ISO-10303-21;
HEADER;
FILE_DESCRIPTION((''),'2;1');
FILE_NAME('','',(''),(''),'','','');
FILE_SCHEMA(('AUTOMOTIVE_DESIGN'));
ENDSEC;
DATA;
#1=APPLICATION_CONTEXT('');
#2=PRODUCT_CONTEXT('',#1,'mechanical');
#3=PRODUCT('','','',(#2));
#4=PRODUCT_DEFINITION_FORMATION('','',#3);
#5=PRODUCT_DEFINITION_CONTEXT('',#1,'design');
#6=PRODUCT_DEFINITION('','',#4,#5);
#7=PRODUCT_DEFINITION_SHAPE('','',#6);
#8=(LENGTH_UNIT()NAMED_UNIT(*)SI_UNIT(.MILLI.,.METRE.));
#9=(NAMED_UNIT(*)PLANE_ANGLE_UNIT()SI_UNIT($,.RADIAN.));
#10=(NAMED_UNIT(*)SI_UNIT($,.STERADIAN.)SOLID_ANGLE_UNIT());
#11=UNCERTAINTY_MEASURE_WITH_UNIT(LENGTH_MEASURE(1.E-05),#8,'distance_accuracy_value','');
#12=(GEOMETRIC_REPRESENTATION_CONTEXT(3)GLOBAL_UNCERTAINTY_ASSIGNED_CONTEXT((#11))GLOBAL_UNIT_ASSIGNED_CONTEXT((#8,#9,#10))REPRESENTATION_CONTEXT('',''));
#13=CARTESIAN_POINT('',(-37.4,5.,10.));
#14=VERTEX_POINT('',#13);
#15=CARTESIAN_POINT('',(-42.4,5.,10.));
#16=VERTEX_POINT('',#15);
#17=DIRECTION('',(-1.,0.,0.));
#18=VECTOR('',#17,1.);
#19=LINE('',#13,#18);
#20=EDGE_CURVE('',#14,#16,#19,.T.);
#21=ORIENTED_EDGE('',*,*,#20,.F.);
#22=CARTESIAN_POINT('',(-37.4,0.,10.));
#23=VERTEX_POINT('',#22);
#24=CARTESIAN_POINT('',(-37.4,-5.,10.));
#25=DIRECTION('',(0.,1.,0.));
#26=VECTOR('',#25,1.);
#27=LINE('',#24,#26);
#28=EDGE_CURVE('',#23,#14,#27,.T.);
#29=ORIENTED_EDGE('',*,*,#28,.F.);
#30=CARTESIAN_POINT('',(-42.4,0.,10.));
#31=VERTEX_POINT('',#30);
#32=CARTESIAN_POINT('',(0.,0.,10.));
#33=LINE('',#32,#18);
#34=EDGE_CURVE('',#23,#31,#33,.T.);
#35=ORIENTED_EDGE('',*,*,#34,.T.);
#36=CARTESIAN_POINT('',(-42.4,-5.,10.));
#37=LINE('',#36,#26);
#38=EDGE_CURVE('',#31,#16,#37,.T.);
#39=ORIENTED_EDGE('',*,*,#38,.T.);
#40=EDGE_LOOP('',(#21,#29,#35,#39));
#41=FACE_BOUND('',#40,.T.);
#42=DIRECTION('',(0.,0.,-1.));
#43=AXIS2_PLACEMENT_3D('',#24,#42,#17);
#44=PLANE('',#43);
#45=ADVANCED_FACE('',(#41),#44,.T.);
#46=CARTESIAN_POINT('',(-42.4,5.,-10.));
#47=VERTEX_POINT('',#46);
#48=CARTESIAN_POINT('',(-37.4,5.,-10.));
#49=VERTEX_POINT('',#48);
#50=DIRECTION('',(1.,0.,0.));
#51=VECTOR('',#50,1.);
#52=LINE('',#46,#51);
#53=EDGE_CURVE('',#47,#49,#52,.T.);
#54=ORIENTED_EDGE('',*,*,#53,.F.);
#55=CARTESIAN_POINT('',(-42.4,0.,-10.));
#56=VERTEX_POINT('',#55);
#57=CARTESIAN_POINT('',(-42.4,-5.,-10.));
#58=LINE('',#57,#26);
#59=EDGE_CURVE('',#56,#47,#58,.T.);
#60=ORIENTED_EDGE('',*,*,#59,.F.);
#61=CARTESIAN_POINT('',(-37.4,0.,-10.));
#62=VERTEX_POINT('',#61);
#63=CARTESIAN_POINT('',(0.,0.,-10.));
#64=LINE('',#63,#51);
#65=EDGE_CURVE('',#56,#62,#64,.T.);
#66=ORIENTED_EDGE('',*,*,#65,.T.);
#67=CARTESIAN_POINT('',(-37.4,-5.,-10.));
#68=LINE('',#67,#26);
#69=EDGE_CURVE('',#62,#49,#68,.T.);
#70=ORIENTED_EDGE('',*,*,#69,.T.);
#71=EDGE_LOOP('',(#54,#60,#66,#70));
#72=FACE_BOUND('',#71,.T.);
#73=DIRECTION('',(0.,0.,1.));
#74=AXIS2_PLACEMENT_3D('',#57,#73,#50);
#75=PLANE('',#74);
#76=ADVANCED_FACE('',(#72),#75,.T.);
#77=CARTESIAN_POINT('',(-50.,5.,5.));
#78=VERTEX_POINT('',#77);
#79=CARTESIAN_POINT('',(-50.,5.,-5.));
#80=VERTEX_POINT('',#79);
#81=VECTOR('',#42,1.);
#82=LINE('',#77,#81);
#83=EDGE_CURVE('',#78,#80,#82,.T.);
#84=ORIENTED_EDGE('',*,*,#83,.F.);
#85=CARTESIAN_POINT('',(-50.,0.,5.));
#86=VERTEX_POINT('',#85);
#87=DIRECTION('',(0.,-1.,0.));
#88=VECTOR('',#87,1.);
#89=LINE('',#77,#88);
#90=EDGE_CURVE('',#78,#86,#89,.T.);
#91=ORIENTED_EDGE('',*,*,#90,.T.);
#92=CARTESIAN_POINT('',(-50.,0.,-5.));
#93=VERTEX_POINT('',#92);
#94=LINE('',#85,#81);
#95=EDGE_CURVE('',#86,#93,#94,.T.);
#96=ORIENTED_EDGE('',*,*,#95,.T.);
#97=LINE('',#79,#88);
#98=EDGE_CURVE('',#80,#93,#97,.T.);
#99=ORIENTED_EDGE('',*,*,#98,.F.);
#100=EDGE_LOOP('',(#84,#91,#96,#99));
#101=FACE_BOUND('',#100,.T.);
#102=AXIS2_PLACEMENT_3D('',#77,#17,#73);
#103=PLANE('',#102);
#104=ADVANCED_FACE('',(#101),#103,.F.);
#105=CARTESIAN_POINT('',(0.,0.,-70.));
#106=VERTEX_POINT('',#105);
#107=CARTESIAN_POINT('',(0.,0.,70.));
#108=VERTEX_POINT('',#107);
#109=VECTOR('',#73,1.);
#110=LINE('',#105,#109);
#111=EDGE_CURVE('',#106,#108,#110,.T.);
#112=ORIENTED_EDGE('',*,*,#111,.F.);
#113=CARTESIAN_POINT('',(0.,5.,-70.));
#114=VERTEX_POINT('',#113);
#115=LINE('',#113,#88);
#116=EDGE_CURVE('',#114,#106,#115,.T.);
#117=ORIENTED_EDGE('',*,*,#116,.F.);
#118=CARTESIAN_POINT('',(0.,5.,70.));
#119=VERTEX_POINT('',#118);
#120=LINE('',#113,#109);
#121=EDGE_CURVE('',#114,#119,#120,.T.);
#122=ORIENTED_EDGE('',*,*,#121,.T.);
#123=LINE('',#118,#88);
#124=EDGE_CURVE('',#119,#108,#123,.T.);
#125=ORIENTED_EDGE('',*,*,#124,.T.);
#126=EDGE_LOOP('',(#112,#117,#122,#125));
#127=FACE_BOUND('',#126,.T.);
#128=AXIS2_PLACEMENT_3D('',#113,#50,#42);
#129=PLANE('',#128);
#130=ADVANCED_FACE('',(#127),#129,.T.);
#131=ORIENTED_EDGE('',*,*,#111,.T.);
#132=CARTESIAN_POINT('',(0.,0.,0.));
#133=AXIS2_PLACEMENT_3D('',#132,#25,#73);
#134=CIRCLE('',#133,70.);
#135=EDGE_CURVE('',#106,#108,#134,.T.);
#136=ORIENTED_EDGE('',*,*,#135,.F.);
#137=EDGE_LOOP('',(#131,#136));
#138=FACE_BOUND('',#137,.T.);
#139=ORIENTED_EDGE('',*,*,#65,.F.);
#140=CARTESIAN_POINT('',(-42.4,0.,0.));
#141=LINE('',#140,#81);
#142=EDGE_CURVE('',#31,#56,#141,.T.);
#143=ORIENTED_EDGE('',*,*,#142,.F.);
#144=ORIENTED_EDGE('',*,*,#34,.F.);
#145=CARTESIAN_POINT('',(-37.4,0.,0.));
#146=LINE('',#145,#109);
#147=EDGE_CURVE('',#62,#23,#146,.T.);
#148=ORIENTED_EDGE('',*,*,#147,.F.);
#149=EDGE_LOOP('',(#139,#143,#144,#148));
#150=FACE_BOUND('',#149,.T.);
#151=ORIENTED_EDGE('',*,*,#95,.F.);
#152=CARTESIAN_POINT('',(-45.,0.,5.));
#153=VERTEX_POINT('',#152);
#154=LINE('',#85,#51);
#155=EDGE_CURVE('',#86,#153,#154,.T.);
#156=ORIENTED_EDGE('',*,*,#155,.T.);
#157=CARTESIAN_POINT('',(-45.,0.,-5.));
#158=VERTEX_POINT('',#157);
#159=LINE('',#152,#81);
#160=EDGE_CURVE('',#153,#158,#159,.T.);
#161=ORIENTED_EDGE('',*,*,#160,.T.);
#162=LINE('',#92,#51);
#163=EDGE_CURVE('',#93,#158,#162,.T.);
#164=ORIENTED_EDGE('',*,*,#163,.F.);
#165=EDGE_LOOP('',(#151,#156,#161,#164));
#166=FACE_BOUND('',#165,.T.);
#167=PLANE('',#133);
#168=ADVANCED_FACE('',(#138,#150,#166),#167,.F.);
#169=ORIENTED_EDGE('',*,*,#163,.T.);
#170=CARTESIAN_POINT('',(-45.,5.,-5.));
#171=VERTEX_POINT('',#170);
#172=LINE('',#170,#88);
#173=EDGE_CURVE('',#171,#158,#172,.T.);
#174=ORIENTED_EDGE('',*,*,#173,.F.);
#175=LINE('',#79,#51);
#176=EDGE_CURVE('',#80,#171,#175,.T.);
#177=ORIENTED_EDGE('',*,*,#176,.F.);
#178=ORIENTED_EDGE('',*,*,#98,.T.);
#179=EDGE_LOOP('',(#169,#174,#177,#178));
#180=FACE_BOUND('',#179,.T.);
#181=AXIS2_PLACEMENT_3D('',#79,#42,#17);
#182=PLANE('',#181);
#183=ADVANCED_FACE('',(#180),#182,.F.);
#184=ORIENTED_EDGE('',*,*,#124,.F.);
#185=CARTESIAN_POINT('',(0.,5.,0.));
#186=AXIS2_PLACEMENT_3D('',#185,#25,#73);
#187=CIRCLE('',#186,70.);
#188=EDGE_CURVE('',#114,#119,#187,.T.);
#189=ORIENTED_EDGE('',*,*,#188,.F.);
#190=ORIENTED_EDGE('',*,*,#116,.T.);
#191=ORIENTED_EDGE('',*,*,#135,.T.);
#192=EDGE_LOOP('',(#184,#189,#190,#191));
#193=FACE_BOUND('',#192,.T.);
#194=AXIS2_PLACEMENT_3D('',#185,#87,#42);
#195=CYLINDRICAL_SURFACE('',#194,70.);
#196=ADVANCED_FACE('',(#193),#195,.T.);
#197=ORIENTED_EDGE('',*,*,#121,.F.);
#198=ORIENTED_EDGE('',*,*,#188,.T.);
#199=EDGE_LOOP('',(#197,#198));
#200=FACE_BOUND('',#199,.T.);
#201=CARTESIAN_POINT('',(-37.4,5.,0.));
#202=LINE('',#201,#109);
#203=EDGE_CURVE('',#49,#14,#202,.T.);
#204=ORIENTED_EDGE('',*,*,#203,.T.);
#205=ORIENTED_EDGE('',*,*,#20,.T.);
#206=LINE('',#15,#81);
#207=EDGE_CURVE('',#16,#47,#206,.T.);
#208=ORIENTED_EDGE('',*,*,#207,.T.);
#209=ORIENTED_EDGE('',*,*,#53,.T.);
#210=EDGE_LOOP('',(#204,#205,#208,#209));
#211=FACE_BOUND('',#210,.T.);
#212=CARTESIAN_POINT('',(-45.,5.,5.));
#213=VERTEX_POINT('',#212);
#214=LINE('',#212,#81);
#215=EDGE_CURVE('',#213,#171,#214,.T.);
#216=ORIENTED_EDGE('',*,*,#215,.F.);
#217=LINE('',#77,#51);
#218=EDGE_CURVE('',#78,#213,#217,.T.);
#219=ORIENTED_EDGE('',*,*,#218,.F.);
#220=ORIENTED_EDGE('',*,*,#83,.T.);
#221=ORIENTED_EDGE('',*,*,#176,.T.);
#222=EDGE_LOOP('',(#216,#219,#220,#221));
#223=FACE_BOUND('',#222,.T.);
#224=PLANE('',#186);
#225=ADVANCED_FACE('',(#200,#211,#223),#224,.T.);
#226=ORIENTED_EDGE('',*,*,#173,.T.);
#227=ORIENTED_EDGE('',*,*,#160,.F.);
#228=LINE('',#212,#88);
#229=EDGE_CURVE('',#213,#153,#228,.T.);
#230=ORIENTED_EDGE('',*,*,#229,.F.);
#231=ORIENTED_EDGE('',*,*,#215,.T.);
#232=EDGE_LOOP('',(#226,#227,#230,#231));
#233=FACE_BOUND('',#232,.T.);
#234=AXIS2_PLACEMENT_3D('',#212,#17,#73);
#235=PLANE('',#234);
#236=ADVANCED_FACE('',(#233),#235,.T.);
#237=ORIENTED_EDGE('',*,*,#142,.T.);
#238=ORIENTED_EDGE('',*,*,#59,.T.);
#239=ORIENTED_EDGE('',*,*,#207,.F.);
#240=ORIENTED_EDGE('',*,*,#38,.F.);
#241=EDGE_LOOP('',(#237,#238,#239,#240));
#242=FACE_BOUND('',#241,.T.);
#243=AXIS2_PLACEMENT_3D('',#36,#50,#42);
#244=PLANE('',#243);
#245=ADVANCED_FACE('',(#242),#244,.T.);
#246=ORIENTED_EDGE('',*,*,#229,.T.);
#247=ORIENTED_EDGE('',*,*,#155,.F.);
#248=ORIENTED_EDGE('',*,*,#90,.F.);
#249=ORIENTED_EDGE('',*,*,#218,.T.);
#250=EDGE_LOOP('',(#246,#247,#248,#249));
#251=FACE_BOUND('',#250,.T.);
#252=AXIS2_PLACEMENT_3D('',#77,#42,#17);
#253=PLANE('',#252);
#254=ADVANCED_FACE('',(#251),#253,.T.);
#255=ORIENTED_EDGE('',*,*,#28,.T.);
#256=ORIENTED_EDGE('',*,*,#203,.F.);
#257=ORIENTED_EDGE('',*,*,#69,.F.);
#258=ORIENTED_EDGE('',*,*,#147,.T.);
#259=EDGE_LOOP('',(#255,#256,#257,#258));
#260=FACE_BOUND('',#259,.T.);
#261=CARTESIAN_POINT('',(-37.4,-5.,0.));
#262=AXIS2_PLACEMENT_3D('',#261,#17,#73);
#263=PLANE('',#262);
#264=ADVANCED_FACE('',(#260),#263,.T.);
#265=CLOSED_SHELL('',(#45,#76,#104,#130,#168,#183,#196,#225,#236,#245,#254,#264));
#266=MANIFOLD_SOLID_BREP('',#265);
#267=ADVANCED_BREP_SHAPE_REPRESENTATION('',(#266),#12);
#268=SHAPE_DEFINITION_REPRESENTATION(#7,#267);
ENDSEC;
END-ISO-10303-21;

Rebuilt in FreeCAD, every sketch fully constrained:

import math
import FreeCAD as App
import Part
import Sketcher

V = App.Vector
Q = App.Units.Quantity


def add_polygon(sketch, points):
    """Adds a closed chain of lines whose ends are joined by coincident constraints."""
    first, n = sketch.GeometryCount, len(points)
    for a, b in zip(points, points[1:] + points[:1]):
        sketch.addGeometry(Part.LineSegment(App.Vector(*a, 0), App.Vector(*b, 0)), False)
    for i in range(n):
        sketch.addConstraint(Sketcher.Constraint("Coincident", first + i, 2, first + (i + 1) % n, 1))

doc = App.newDocument("Part")
body = doc.addObject("PartDesign::Body", "Body")

sketch1 = body.newObject("Sketcher::SketchObject", "Sketch")
sketch1.AttachmentSupport = (doc.getObject("XZ_Plane"), [""])
sketch1.MapMode = "FlatFace"
sketch1.addGeometry(Part.LineSegment(V(0, 70, 0), V(0, -70, 0)), False)
sketch1.addGeometry(Part.ArcOfCircle(Part.Circle(V(0, 0, 0), V(0, 0, 1), 70), math.radians(90), math.radians(270)), False)
add_polygon(sketch1, [(-50, 5), (-50, -5), (-45, -5), (-45, 5)])
sketch1.addConstraint([
    Sketcher.Constraint("Coincident", 0, 1, 1, 1),
    Sketcher.Constraint("Coincident", 1, 2, 0, 2),
    Sketcher.Constraint("Vertical", 0),
    Sketcher.Constraint("Vertical", 2),
    Sketcher.Constraint("Horizontal", 3),
    Sketcher.Constraint("Vertical", 4),
    Sketcher.Constraint("Horizontal", 5),
    Sketcher.Constraint("Coincident", 1, 3, -1, 1),
    Sketcher.Constraint("PointOnObject", 0, 1, -2),
    Sketcher.Constraint("Radius", 1, Q("70 mm")),
    Sketcher.Constraint("DistanceX", 3, 1, 3, 2, Q("5 mm")),
    Sketcher.Constraint("DistanceY", 2, 2, 2, 1, Q("10 mm")),
    Sketcher.Constraint("DistanceX", 2, 2, -1, 1, Q("50 mm")),
    Sketcher.Constraint("DistanceY", 2, 2, -1, 1, Q("5 mm")),
])
pad1 = body.newObject("PartDesign::Pad", "Pad")
pad1.Profile = sketch1
pad1.Length = 5
pad1.Reversed = True

sketch2 = body.newObject("Sketcher::SketchObject", "Sketch001")
sketch2.AttachmentSupport = (doc.getObject("XZ_Plane"), [""])
sketch2.MapMode = "FlatFace"
sketch2.AttachmentOffset = App.Placement(V(0, 0, -5), App.Rotation())
add_polygon(sketch2, [(-37.4, 10), (-37.4, -10), (-42.4, -10), (-42.4, 10)])
sketch2.addConstraint([
    Sketcher.Constraint("Vertical", 0),
    Sketcher.Constraint("Horizontal", 1),
    Sketcher.Constraint("Vertical", 2),
    Sketcher.Constraint("Horizontal", 3),
    Sketcher.Constraint("DistanceX", 1, 2, 1, 1, Q("5 mm")),
    Sketcher.Constraint("DistanceY", 0, 2, 0, 1, Q("20 mm")),
    Sketcher.Constraint("DistanceY", 0, 2, -1, 1, Q("10 mm")),
    Sketcher.Constraint("DistanceX", 0, 2, -1, 1, Q("37.4 mm")),
])
pocket1 = body.newObject("PartDesign::Pocket", "Pocket")
pocket1.Profile = sketch2
pocket1.Length = 10
pocket1.Reversed = True

doc.recompute()
